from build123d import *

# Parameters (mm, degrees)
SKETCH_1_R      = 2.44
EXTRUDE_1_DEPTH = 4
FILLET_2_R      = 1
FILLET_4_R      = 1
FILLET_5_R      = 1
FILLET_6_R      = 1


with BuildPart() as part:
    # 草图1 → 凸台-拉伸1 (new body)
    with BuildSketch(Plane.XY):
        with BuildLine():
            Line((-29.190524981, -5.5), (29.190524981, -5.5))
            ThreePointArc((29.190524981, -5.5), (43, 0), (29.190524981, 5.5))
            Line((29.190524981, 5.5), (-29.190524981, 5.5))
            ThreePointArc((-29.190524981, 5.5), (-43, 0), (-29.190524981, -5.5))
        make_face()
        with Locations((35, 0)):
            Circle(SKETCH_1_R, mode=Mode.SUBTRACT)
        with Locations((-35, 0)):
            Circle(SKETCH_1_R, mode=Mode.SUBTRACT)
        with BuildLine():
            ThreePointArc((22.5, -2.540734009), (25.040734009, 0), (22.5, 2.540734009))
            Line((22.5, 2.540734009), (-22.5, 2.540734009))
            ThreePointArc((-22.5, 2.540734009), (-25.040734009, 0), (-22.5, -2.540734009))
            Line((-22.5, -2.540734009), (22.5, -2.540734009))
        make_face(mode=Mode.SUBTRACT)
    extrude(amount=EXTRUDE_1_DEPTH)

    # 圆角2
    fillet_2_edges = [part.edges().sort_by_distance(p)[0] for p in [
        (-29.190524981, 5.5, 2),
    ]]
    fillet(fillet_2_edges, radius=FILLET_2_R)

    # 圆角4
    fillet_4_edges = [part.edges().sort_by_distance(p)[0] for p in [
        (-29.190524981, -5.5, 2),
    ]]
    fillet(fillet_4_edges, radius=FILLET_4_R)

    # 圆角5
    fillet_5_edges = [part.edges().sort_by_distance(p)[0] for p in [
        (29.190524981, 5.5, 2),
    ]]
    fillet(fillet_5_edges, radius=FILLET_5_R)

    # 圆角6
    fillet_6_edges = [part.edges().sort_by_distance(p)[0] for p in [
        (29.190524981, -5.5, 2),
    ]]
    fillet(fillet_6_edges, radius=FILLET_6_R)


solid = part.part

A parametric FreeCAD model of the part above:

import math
import FreeCAD as App
import Part
import Sketcher


def edges_at(feature, points):
    """Names of the edges that pass closest to the given points."""
    edges = feature.Shape.Edges
    near = lambda p: min(range(len(edges)), key=lambda i: edges[i].distToShape(Part.Vertex(*p))[0])
    return sorted({f"Edge{near(p) + 1}" for p in points})

doc = App.newDocument("Part")
body = doc.addObject("PartDesign::Body", "Body")

sketch1 = body.newObject("Sketcher::SketchObject", "Sketch")
sketch1.AttachmentSupport = (doc.getObject("XY_Plane"), [""])
sketch1.MapMode = "FlatFace"
sketch1.addGeometry(Part.LineSegment(App.Vector(-29.2, -5.5, 0), App.Vector(29.2, -5.5, 0)), False)
sketch1.addGeometry(Part.ArcOfCircle(Part.Circle(App.Vector(35, 0, 0), App.Vector(0, 0, 1), 8), math.radians(-137), math.radians(137)), False)
sketch1.addGeometry(Part.LineSegment(App.Vector(29.2, 5.5, 0), App.Vector(-29.2, 5.5, 0)), False)
sketch1.addGeometry(Part.ArcOfCircle(Part.Circle(App.Vector(-35, 0, 0), App.Vector(0, 0, 1), 8), math.radians(43), math.radians(317)), False)
sketch1.addGeometry(Part.Circle(App.Vector(-35, 0, 0), App.Vector(0, 0, 1), 2.4), False)
sketch1.addGeometry(Part.ArcOfCircle(Part.Circle(App.Vector(22.5, 0, 0), App.Vector(0, 0, 1), 2.5), math.radians(-90), math.radians(90)), False)
sketch1.addGeometry(Part.LineSegment(App.Vector(22.5, -2.5, 0), App.Vector(-22.5, -2.5, 0)), False)
sketch1.addGeometry(Part.ArcOfCircle(Part.Circle(App.Vector(-22.5, 0, 0), App.Vector(0, 0, 1), 2.5), math.radians(90), math.radians(270)), False)
sketch1.addGeometry(Part.LineSegment(App.Vector(-22.5, 2.5, 0), App.Vector(22.5, 2.5, 0)), False)
sketch1.addGeometry(Part.Circle(App.Vector(35, 0, 0), App.Vector(0, 0, 1), 2.4), False)
sketch1.addConstraint(Sketcher.Constraint("Coincident", 0, 2, 1, 1))
sketch1.addConstraint(Sketcher.Constraint("Coincident", 1, 2, 2, 1))
sketch1.addConstraint(Sketcher.Constraint("Coincident", 2, 2, 3, 1))
sketch1.addConstraint(Sketcher.Constraint("Coincident", 3, 2, 0, 1))
sketch1.addConstraint(Sketcher.Constraint("Tangent", 5, 1, 6, 1))
sketch1.addConstraint(Sketcher.Constraint("Tangent", 6, 2, 7, 2))
sketch1.addConstraint(Sketcher.Constraint("Tangent", 7, 1, 8, 1))
sketch1.addConstraint(Sketcher.Constraint("Tangent", 8, 2, 5, 2))
sketch1.addConstraint(Sketcher.Constraint("Horizontal", 0))
sketch1.addConstraint(Sketcher.Constraint("Horizontal", 2))
sketch1.addConstraint(Sketcher.Constraint("Horizontal", 6))
sketch1.addConstraint(Sketcher.Constraint("Horizontal", 8))
sketch1.addConstraint(Sketcher.Constraint("Coincident", 4, 3, 3, 3))
sketch1.addConstraint(Sketcher.Constraint("Coincident", 9, 3, 1, 3))
sketch1.addConstraint(Sketcher.Constraint("Equal", 1, 3))
sketch1.addConstraint(Sketcher.Constraint("Equal", 4, 9))
sketch1.addConstraint(Sketcher.Constraint("Symmetric", 1, 3, 3, 3, -1, 1))
sketch1.addConstraint(Sketcher.Constraint("Symmetric", 5, 3, 7, 3, -1, 1))
sketch1.addConstraint(Sketcher.Constraint("Symmetric", 0, 2, 1, 2, -1))
sketch1.addConstraint(Sketcher.Constraint("Radius", 1, 8.0))
sketch1.addConstraint(Sketcher.Constraint("Diameter", 4, 4.88))
sketch1.addConstraint(Sketcher.Constraint("DistanceX", 6, 2, 6, 1, 45.0))
sketch1.addConstraint(Sketcher.Constraint("DistanceX", -1, 1, 1, 3, 35.0))
sketch1.addConstraint(Sketcher.Constraint("DistanceY", 0, 2, 1, 2, 11.0))
sketch1.addConstraint(Sketcher.Constraint("Radius", 5, 2.540734))
pad1 = body.newObject("PartDesign::Pad", "Pad")
pad1.Profile = sketch1
pad1.Length = 4
doc.recompute()

fillet = body.newObject("PartDesign::Fillet", "Fillet")
fillet.Base = (pad1, edges_at(pad1, [(-29.191, 5.5, 2)]))
fillet.Radius = 1
doc.recompute()

fillet2 = body.newObject("PartDesign::Fillet", "Fillet001")
fillet2.Base = (fillet, edges_at(fillet, [(-29.191, -5.5, 2)]))
fillet2.Radius = 1
doc.recompute()

fillet3 = body.newObject("PartDesign::Fillet", "Fillet002")
fillet3.Base = (fillet2, edges_at(fillet2, [(29.191, 5.5, 2)]))
fillet3.Radius = 1
doc.recompute()

fillet4 = body.newObject("PartDesign::Fillet", "Fillet003")
fillet4.Base = (fillet3, edges_at(fillet3, [(29.191, -5.5, 2)]))
fillet4.Radius = 1

doc.recompute()
